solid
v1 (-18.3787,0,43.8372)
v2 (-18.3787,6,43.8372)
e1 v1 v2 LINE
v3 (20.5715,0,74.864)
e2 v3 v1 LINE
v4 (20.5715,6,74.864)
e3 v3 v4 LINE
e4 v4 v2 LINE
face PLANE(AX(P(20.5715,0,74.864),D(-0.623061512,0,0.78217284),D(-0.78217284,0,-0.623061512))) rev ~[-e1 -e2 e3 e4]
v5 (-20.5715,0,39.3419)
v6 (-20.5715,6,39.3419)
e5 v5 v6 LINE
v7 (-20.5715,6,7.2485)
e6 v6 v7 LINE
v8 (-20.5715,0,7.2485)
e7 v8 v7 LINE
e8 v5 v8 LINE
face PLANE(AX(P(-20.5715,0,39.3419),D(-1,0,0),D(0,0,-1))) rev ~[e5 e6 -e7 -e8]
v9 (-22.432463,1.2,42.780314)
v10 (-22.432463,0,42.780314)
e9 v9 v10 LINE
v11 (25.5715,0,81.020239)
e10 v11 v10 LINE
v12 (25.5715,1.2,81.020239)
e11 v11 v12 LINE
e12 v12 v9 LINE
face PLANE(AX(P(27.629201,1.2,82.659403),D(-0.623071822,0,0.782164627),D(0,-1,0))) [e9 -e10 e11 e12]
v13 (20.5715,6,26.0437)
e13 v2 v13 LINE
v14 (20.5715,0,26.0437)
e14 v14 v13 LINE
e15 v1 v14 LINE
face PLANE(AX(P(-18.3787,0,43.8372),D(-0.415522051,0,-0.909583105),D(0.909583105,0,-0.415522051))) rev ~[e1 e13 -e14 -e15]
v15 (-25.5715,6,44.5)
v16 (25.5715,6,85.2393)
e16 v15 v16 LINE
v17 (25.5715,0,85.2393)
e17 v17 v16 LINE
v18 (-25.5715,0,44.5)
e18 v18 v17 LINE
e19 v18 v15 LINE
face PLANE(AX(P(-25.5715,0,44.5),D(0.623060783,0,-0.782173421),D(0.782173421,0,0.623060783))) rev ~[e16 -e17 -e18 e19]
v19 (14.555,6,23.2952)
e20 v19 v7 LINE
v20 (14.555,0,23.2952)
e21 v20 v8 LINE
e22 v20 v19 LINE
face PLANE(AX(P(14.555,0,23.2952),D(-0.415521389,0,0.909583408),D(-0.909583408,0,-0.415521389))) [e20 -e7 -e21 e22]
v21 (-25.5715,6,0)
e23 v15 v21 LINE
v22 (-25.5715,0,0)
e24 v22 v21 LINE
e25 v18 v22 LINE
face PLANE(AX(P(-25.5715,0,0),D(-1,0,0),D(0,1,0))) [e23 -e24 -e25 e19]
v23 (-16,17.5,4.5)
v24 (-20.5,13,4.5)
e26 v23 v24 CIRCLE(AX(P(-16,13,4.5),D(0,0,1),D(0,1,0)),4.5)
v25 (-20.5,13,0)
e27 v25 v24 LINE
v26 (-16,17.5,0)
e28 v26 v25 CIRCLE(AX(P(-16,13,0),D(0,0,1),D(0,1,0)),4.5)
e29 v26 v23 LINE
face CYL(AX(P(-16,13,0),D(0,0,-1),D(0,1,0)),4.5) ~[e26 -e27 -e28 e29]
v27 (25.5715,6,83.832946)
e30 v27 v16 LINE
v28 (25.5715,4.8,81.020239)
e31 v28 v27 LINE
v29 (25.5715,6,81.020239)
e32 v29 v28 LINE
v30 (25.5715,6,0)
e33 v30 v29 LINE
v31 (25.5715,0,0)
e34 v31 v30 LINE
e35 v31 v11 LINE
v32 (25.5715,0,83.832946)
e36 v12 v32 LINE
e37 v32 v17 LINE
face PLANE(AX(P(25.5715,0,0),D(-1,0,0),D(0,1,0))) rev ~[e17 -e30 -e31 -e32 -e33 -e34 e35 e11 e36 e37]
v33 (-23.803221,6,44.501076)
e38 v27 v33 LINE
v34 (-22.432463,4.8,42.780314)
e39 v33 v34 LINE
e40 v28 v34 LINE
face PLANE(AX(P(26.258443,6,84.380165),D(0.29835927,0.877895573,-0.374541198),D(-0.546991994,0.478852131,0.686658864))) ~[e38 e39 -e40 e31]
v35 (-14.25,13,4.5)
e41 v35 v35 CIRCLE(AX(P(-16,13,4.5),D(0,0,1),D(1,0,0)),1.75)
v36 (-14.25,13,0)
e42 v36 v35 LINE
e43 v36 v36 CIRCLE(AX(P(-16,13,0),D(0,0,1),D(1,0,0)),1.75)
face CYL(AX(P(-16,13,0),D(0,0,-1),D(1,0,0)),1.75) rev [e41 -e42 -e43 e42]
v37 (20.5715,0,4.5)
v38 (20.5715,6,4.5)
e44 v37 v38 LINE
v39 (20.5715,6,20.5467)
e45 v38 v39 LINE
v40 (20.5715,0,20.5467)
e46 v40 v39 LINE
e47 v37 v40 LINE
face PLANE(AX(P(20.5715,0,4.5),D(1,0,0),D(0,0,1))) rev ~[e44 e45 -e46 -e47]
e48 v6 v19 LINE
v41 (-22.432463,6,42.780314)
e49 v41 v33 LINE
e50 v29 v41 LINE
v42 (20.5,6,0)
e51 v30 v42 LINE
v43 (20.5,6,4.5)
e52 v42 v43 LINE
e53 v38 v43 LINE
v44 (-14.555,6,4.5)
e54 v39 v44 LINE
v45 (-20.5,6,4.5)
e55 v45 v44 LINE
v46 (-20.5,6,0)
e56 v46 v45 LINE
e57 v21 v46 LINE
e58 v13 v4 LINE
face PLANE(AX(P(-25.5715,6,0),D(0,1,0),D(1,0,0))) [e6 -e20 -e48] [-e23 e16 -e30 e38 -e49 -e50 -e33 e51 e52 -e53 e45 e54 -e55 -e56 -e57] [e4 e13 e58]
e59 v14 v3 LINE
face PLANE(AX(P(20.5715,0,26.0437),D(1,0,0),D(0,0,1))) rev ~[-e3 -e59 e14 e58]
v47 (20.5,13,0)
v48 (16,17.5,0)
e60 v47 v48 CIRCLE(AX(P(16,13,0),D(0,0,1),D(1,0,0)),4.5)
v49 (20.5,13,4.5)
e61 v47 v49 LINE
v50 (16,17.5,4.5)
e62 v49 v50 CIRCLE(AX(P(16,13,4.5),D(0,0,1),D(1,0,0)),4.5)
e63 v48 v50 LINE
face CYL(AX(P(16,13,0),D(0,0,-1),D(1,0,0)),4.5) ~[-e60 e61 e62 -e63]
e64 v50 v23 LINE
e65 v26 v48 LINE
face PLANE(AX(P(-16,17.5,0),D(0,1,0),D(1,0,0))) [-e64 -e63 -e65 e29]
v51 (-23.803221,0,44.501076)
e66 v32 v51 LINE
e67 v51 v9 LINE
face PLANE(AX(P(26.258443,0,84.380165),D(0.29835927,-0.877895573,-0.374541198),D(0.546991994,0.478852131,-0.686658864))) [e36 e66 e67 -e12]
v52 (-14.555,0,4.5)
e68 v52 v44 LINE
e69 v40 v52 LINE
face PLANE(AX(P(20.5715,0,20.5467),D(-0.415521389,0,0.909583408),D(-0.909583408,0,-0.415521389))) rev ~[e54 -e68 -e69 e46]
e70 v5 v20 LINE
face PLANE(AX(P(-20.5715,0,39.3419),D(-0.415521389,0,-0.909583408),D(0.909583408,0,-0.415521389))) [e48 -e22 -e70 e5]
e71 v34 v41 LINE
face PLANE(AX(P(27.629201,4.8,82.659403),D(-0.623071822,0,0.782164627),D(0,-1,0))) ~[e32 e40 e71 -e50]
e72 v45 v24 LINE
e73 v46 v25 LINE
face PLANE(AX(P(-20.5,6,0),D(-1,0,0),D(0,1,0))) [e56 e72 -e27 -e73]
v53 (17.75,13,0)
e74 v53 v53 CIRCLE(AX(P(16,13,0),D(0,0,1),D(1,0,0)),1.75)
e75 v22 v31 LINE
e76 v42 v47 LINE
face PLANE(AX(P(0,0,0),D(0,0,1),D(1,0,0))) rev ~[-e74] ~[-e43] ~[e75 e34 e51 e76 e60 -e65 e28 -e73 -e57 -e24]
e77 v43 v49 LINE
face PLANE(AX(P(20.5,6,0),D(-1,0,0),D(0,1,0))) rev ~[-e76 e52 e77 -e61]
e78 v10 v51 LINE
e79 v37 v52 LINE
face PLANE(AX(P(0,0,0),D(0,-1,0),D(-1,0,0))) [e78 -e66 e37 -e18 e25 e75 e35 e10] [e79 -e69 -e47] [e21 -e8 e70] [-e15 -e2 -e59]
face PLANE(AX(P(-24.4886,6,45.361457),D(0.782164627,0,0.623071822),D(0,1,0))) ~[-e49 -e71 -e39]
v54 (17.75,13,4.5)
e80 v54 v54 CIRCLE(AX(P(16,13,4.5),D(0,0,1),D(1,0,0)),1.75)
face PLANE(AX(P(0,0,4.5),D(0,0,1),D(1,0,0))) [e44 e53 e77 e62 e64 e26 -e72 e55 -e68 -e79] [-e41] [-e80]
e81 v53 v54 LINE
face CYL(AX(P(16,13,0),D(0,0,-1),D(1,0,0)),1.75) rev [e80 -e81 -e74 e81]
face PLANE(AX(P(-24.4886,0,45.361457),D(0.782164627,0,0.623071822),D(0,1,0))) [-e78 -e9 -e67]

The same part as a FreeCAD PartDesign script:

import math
import FreeCAD as App
import Part
import Sketcher
Q = App.Units.Quantity

doc = App.newDocument("Part")
params = doc.addObject("Spreadsheet::Sheet", "Params")
for row, (alias, value) in enumerate([
    ("sketch1_diameter", "3.5 mm"),
    ("sketch1_radius", "4.5 mm"),
    ("sketch1_width", "32 mm"),
    ("sketch1_height", "6 mm"),
    ("pad1_length", "4.5 mm"),
    ("sketch2_width", "5 mm"),
    ("sketch2_height", "40 mm"),
    ("pad2_length", "6 mm"),
    ("sketch3_width", "1.2 mm"),
    ("pocket1_length", "64 mm"),
], start=1):
    params.set(f"A{row}", alias)
    params.set(f"B{row}", "=" + value)
    params.setAlias(f"B{row}", alias)

body = doc.addObject("PartDesign::Body", "Body")

# Sketch on XY plane
sketch1 = body.newObject("Sketcher::SketchObject", "Sketch")
sketch1.AttachmentSupport = (doc.getObject("XY_Plane"), [""])
sketch1.MapMode = "FlatFace"
sketch1.addGeometry([
    Part.LineSegment(App.Vector(-25.6, 0, 0), App.Vector(25.6, 0, 0)),  # 0
    Part.LineSegment(App.Vector(25.6, 0, 0), App.Vector(25.6, 6, 0)),  # 1
    Part.LineSegment(App.Vector(25.6, 6, 0), App.Vector(20.5, 6, 0)),  # 2
    Part.LineSegment(App.Vector(20.5, 6, 0), App.Vector(20.5, 13, 0)),  # 3
    Part.ArcOfCircle(Part.Circle(App.Vector(16, 13, 0), App.Vector(0, 0, 1), 4.5), math.radians(0), math.radians(90)),  # 4
    Part.LineSegment(App.Vector(16, 17.5, 0), App.Vector(-16, 17.5, 0)),  # 5
    Part.ArcOfCircle(Part.Circle(App.Vector(-16, 13, 0), App.Vector(0, 0, 1), 4.5), math.radians(90), math.radians(180)),  # 6
    Part.LineSegment(App.Vector(-20.5, 13, 0), App.Vector(-20.5, 6, 0)),  # 7
    Part.LineSegment(App.Vector(-20.5, 6, 0), App.Vector(-25.6, 6, 0)),  # 8
    Part.LineSegment(App.Vector(-25.6, 6, 0), App.Vector(-25.6, 0, 0)),  # 9
    Part.Circle(App.Vector(-16, 13, 0), App.Vector(0, 0, 1), 1.8),  # 10
    Part.Circle(App.Vector(16, 13, 0), App.Vector(0, 0, 1), 1.8),  # 11
], False)
sketch1.addConstraint([
    Sketcher.Constraint("Coincident", 0, 2, 1, 1),
    Sketcher.Constraint("Coincident", 1, 2, 2, 1),
    Sketcher.Constraint("Coincident", 2, 2, 3, 1),
    Sketcher.Constraint("Tangent", 3, 2, 4, 1),
    Sketcher.Constraint("Tangent", 4, 2, 5, 1),
    Sketcher.Constraint("Tangent", 5, 2, 6, 1),
    Sketcher.Constraint("Tangent", 6, 2, 7, 1),
    Sketcher.Constraint("Coincident", 7, 2, 8, 1),
    Sketcher.Constraint("Coincident", 8, 2, 9, 1),
    Sketcher.Constraint("Coincident", 9, 2, 0, 1),
    Sketcher.Constraint("Horizontal", 0),
    Sketcher.Constraint("Vertical", 1),
    Sketcher.Constraint("Horizontal", 2),
    Sketcher.Constraint("Vertical", 3),
    Sketcher.Constraint("Horizontal", 5),
    Sketcher.Constraint("Vertical", 7),
    Sketcher.Constraint("Horizontal", 8),
    Sketcher.Constraint("Vertical", 9),
    Sketcher.Constraint("Coincident", 10, 3, 6, 3),
    Sketcher.Constraint("Coincident", 11, 3, 4, 3),
    Sketcher.Constraint("Equal", 4, 6),
    Sketcher.Constraint("Equal", 10, 11),
    Sketcher.Constraint("Symmetric", 0, 2, 9, 2, -1, 1),
    Sketcher.Constraint("Symmetric", 2, 2, 7, 2, -2),
    Sketcher.Constraint("Diameter", 10, 3.5),
    Sketcher.Constraint("Radius", 4, 4.5),
    Sketcher.Constraint("DistanceX", 5, 2, 5, 1, 32.0),
    Sketcher.Constraint("DistanceY", 1, 1, 1, 2, 6.0),
    Sketcher.Constraint("DistanceY", -1, 1, 4, 3, 13.0),
    Sketcher.Constraint("DistanceX", -1, 1, 0, 2, 25.5715),
])
sketch1.setExpression("Constraints[24]", "Params.sketch1_diameter")
sketch1.setExpression("Constraints[25]", "Params.sketch1_radius")
sketch1.setExpression("Constraints[26]", "Params.sketch1_width")
sketch1.setExpression("Constraints[27]", "Params.sketch1_height")
pad1 = body.newObject("PartDesign::Pad", "Pad")
pad1.Profile = sketch1
pad1.setExpression("Length", "Params.pad1_length")

# Sketch on XZ plane
sketch2 = body.newObject("Sketcher::SketchObject", "Sketch001")
sketch2.AttachmentSupport = (doc.getObject("XZ_Plane"), [""])
sketch2.MapMode = "FlatFace"
sketch2.addGeometry([
    Part.LineSegment(App.Vector(-26, 44, 0), App.Vector(-26, 4, 0)),  # 0
    Part.LineSegment(App.Vector(-26, 4, 0), App.Vector(-15, 4, 0)),  # 1
    Part.LineSegment(App.Vector(-15, 4, 0), App.Vector(21, 21, 0)),  # 2
    Part.LineSegment(App.Vector(21, 21, 0), App.Vector(21, 4, 0)),  # 3
    Part.LineSegment(App.Vector(21, 4, 0), App.Vector(26, 4, 0)),  # 4
    Part.LineSegment(App.Vector(26, 4, 0), App.Vector(26, 85, 0)),  # 5
    Part.LineSegment(App.Vector(26, 85, 0), App.Vector(-26, 44, 0)),  # 6
    Part.LineSegment(App.Vector(21, 75, 0), App.Vector(21, 26, 0)),  # 7
    Part.LineSegment(App.Vector(21, 26, 0), App.Vector(-18, 44, 0)),  # 8
    Part.LineSegment(App.Vector(-18, 44, 0), App.Vector(21, 75, 0)),  # 9
    Part.LineSegment(App.Vector(-21, 7, 0), App.Vector(-21, 39, 0)),  # 10
    Part.LineSegment(App.Vector(-21, 39, 0), App.Vector(15, 23, 0)),  # 11
    Part.LineSegment(App.Vector(15, 23, 0), App.Vector(-21, 7, 0)),  # 12
], False)
sketch2.addConstraint([
    Sketcher.Constraint("Coincident", 0, 2, 1, 1),
    Sketcher.Constraint("Coincident", 1, 2, 2, 1),
    Sketcher.Constraint("Coincident", 2, 2, 3, 1),
    Sketcher.Constraint("Coincident", 3, 2, 4, 1),
    Sketcher.Constraint("Coincident", 4, 2, 5, 1),
    Sketcher.Constraint("Coincident", 5, 2, 6, 1),
    Sketcher.Constraint("Coincident", 6, 2, 0, 1),
    Sketcher.Constraint("Coincident", 7, 2, 8, 1),
    Sketcher.Constraint("Coincident", 8, 2, 9, 1),
    Sketcher.Constraint("Coincident", 9, 2, 7, 1),
    Sketcher.Constraint("Coincident", 10, 2, 11, 1),
    Sketcher.Constraint("Coincident", 11, 2, 12, 1),
    Sketcher.Constraint("Coincident", 12, 2, 10, 1),
    Sketcher.Constraint("Vertical", 0),
    Sketcher.Constraint("Horizontal", 1),
    Sketcher.Constraint("Vertical", 3),
    Sketcher.Constraint("Horizontal", 4),
    Sketcher.Constraint("Vertical", 5),
    Sketcher.Constraint("Vertical", 7),
    Sketcher.Constraint("Vertical", 10),
    Sketcher.Constraint("Symmetric", 0, 2, 4, 2, -2),
    Sketcher.Constraint("Parallel", 6, 9),
    Sketcher.Constraint("Parallel", 8, 11),
    Sketcher.Constraint("Parallel", 2, 12),
    Sketcher.Constraint("Vertical", 3, 2, 7, 2),
    Sketcher.Constraint("Equal", 2, 11),
    Sketcher.Constraint("Equal", 11, 12),
    Sketcher.Constraint("DistanceX", 4, 1, 4, 2, 5.0),
    Sketcher.Constraint("DistanceY", 0, 2, 0, 1, 40.0),
    Sketcher.Constraint("DistanceX", 6, 2, 10, 2, 5.0),
    Sketcher.Constraint("DistanceY", -1, 1, 0, 2, 4.5),
    Sketcher.Constraint("Angle", 6, Q("-141.46 deg")),
    Sketcher.Constraint("DistanceX", 1, 2, 11, 2, 29.11),
    Sketcher.Constraint("Distance", 8, 42.822),
    Sketcher.Constraint("DistanceX", 1, 1, 1, 2, 11.0165),
    Sketcher.Constraint("DistanceY", 3, 2, 3, 1, 16.0467),
    Sketcher.Constraint("DistanceY", -1, 1, 9, 2, 74.864),
    Sketcher.Constraint("DistanceY", -1, 1, 10, 2, 39.342),
])
sketch2.setExpression("Constraints[27]", "Params.sketch2_width")
sketch2.setExpression("Constraints[28]", "Params.sketch2_height")
pad2 = body.newObject("PartDesign::Pad", "Pad001")
pad2.Profile = sketch2
pad2.setExpression("Length", "Params.pad2_length")
pad2.Reversed = True

# Sketch on an angled plane
sketch3 = body.newObject("Sketcher::SketchObject", "Sketch002")
sketch3.Placement = App.Placement(App.Vector(25.5715, 0, 85.2393), App.Rotation(App.Vector(0, 1, 0), App.Vector(-0.623071822, 0, 0.782164627), App.Vector(0.782164627, 0, 0.623071822), "ZXY"))
sketch3.addGeometry([
    Part.LineSegment(App.Vector(0, -1.1, 0), App.Vector(0, -3.3, 0)),
    Part.LineSegment(App.Vector(0, -3.3, 0), App.Vector(1.2, -3.3, 0)),
    Part.LineSegment(App.Vector(1.2, -3.3, 0), App.Vector(0, -1.1, 0)),
], False)
sketch3.addConstraint([
    Sketcher.Constraint("Coincident", 0, 2, 1, 1),
    Sketcher.Constraint("Coincident", 1, 2, 2, 1),
    Sketcher.Constraint("Coincident", 2, 2, 0, 1),
    Sketcher.Constraint("Vertical", 0),
    Sketcher.Constraint("Horizontal", 1),
    Sketcher.Constraint("PointOnObject", 0, 2, -2),
    Sketcher.Constraint("DistanceY", 0, 2, -1, 1, 3.3),
    Sketcher.Constraint("DistanceY", 2, 2, -1, 1, 1.1),
    Sketcher.Constraint("DistanceX", 1, 1, 1, 2, 1.2),
])
sketch3.setExpression("Constraints[8]", "Params.sketch3_width")
pocket1 = body.newObject("PartDesign::Pocket", "Pocket")
pocket1.Profile = sketch3
pocket1.setExpression("Length", "Params.pocket1_length")
doc.recompute()

datumplane = body.newObject("PartDesign::Plane", "DatumPlane")
datumplane.AttachmentSupport = (doc.getObject("XZ_Plane"), [""])
datumplane.MapMode = "FlatFace"
datumplane.AttachmentOffset = App.Placement(App.Vector(0, 0, -3), App.Rotation())
mirrored = body.newObject("PartDesign::Mirrored", "Mirrored")
mirrored.Originals = [pocket1]
mirrored.MirrorPlane = (datumplane, [""])
body.Tip = mirrored

doc.recompute()
